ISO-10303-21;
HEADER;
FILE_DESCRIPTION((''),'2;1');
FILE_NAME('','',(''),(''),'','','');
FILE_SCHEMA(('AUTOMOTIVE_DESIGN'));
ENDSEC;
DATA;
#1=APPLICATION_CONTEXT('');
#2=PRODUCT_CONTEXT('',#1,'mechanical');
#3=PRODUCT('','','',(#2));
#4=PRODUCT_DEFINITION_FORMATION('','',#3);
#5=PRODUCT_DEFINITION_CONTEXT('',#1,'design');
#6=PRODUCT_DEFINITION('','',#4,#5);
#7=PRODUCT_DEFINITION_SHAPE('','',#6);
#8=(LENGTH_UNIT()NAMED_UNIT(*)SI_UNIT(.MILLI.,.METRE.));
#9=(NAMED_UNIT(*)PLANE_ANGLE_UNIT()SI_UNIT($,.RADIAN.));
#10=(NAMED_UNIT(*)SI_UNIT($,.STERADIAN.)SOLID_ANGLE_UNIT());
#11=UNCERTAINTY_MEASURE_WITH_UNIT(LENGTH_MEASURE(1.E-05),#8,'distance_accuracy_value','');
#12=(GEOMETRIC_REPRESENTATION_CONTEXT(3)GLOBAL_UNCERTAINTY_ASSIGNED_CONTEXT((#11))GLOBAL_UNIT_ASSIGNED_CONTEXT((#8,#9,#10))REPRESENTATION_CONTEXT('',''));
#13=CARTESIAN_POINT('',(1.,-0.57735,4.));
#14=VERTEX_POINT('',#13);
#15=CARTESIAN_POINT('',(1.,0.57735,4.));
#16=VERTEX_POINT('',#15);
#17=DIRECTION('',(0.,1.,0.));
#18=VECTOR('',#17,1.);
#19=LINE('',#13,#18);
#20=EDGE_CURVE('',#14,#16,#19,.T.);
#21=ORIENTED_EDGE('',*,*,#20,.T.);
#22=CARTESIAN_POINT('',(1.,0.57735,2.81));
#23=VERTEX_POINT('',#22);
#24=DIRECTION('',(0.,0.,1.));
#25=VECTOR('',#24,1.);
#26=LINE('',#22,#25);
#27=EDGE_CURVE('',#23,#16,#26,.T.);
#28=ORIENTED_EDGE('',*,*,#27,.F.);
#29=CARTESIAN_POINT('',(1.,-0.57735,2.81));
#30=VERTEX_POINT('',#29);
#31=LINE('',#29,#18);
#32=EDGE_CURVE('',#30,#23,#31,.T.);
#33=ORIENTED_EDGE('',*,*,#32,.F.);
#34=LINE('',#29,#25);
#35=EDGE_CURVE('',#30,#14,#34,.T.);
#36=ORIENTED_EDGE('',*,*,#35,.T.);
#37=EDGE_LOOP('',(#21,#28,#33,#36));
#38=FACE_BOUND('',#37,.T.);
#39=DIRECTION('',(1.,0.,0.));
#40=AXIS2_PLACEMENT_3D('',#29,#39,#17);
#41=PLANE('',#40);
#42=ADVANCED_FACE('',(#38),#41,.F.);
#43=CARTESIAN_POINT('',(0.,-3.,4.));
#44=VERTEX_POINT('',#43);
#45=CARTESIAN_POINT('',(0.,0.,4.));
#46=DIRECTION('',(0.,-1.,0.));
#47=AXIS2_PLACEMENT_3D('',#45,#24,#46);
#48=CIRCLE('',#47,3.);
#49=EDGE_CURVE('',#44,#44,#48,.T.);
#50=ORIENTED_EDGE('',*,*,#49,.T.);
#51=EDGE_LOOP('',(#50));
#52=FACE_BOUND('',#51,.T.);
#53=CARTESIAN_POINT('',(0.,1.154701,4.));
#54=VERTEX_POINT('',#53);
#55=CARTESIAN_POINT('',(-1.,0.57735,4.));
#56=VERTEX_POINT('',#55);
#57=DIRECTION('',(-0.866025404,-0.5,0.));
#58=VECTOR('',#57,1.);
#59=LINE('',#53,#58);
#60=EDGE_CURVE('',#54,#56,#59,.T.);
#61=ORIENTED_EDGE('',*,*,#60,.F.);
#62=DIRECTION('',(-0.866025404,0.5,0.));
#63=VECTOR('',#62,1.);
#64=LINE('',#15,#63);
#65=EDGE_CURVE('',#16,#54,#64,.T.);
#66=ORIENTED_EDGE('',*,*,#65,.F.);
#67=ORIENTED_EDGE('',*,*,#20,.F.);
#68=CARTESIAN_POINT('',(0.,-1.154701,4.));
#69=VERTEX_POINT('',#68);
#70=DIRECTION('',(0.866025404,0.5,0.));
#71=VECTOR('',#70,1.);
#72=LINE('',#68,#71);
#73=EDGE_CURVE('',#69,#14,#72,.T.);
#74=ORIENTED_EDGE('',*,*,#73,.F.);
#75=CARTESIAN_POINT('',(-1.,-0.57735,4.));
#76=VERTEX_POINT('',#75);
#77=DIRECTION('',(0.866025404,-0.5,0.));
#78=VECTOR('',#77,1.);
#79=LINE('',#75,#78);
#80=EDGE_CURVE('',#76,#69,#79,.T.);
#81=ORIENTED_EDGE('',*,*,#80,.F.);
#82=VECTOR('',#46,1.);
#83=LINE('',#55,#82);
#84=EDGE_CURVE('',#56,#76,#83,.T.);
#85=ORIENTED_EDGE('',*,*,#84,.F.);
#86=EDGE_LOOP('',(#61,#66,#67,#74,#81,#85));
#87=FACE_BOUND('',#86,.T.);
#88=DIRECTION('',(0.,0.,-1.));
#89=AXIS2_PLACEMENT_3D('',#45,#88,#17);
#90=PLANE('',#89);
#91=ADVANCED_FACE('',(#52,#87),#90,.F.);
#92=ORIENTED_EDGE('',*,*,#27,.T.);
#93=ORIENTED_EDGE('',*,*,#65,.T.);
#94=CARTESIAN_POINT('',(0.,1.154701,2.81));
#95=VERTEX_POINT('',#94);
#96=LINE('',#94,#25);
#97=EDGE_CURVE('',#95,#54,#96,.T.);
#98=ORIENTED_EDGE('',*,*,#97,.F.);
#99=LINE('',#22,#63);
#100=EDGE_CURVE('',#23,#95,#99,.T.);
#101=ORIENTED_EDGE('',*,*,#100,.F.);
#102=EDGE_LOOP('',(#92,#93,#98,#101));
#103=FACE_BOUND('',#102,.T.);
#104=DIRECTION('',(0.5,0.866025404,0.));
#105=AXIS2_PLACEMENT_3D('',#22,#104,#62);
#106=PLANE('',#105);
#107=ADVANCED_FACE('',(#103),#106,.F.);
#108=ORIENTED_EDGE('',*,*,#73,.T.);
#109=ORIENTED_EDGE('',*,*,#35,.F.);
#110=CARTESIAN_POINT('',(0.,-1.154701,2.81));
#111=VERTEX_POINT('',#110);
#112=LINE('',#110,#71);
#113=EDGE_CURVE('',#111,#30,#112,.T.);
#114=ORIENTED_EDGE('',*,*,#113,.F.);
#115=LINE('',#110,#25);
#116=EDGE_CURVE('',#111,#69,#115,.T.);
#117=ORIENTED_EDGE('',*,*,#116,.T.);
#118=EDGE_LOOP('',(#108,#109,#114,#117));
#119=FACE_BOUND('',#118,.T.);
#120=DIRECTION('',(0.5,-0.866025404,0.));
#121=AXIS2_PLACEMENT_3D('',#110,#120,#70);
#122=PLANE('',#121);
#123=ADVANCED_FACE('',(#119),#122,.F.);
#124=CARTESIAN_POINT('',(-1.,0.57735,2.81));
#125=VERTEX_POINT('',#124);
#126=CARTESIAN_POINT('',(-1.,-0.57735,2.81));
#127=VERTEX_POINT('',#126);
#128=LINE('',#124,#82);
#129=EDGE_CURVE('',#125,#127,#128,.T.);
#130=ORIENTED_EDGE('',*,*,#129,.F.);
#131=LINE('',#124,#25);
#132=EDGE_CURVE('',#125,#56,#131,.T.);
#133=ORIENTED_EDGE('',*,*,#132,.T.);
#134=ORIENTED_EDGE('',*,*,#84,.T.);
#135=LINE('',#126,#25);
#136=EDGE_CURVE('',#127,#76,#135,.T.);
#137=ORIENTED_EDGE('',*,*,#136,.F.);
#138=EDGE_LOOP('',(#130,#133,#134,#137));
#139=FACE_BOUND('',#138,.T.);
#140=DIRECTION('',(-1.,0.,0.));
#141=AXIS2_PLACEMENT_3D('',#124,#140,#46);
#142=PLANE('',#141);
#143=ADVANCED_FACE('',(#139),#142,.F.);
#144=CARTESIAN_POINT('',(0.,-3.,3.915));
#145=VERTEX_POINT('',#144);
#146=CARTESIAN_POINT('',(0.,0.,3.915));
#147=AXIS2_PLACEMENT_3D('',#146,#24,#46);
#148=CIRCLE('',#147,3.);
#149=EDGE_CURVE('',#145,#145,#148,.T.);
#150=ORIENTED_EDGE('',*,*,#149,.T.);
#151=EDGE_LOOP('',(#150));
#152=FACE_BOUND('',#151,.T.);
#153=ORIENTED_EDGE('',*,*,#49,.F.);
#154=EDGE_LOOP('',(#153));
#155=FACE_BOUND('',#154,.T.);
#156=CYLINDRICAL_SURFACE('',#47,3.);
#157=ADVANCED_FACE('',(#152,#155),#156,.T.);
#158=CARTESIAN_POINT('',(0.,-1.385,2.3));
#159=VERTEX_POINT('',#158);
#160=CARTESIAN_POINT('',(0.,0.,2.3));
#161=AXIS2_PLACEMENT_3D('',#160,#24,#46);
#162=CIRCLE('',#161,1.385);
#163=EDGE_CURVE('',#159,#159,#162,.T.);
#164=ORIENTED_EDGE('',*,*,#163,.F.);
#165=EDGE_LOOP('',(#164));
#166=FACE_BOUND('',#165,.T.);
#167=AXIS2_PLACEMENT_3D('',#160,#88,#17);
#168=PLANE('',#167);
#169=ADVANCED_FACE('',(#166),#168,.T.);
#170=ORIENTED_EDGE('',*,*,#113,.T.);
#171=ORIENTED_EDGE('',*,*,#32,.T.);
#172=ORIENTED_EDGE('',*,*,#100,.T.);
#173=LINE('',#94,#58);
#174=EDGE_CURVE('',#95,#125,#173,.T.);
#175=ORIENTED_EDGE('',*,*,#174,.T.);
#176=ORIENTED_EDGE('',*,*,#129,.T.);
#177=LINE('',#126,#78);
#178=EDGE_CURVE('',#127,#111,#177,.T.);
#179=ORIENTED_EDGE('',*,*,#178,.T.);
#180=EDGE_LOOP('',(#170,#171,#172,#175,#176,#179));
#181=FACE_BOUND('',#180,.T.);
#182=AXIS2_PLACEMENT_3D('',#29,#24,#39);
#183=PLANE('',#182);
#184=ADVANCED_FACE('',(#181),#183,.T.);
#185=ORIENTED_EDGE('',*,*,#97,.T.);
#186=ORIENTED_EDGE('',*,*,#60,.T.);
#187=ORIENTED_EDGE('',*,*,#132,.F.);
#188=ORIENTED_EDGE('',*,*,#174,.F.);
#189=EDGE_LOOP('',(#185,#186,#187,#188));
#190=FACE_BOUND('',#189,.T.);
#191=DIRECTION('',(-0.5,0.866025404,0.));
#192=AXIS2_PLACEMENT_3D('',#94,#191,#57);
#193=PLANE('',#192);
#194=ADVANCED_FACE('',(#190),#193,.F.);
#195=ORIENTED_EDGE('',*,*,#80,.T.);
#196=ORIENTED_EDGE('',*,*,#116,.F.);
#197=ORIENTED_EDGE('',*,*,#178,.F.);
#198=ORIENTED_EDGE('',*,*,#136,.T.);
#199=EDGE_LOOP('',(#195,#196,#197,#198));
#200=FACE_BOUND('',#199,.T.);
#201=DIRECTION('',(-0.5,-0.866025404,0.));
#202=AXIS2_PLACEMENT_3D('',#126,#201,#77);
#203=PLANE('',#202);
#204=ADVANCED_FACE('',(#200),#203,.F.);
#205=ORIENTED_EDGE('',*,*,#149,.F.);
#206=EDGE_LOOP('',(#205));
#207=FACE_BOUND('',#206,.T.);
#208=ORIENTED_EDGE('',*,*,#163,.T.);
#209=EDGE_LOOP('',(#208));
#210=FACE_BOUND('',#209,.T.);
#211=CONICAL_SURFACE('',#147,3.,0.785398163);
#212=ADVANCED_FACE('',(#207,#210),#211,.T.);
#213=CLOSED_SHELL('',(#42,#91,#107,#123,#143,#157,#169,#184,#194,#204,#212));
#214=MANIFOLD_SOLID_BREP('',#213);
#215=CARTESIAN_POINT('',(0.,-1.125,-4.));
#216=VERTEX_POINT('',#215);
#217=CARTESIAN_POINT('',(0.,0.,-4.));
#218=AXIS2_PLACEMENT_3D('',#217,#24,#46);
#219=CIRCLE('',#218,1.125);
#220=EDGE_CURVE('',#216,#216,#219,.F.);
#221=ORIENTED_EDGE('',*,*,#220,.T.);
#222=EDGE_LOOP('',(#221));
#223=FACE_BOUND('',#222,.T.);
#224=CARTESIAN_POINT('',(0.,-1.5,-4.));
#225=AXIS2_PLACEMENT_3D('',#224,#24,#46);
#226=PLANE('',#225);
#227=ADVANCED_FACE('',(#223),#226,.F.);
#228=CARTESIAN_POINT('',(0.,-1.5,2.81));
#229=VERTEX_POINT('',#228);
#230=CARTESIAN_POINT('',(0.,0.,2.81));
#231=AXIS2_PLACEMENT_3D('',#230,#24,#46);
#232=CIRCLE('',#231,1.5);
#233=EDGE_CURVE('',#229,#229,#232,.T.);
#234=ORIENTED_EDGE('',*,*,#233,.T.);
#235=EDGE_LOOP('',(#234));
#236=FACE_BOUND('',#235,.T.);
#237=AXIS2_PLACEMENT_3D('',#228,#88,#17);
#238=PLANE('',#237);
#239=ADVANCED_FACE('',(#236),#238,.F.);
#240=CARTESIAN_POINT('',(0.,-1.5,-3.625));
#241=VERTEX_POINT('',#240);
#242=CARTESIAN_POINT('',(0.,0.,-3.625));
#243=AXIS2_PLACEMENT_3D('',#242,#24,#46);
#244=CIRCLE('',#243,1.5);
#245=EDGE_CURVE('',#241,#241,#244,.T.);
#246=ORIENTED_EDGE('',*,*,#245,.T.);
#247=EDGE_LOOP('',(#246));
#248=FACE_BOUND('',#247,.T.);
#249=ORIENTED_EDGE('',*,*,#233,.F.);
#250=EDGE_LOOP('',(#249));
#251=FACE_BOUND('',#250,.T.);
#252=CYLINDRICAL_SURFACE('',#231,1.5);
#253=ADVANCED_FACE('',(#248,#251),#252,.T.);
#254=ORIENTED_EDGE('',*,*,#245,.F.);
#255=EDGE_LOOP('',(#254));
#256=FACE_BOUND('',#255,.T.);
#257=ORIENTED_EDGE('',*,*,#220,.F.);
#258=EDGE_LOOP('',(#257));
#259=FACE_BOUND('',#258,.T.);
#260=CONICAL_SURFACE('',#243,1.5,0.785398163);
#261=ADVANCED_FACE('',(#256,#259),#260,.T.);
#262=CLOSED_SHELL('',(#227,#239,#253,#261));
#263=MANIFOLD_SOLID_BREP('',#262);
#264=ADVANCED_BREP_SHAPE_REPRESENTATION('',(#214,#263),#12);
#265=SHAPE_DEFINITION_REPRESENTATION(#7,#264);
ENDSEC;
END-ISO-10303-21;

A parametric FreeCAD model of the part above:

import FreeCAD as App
import Part
import Sketcher
from FreeCAD import Vector
Q = App.Units.Quantity


def edges_at(feature, points):
    """Names of the edges that pass closest to the given points."""
    edges = feature.Shape.Edges
    near = lambda p: min(range(len(edges)), key=lambda i: edges[i].distToShape(Part.Vertex(*p))[0])
    return sorted({f"Edge{near(p) + 1}" for p in points})

doc = App.newDocument("Part")
body = doc.addObject("PartDesign::Body", "Body")

sketch1 = body.newObject("Sketcher::SketchObject", "Sketch")
sketch1.AttachmentSupport = (doc.getObject("YZ_Plane"), [""])
sketch1.MapMode = "FlatFace"
sketch1.addGeometry([
    Part.LineSegment(Vector(1.5, -4, 0), Vector(1.5, 2.8, 0)),
    Part.LineSegment(Vector(1.5, 2.8, 0), Vector(0, 2.8, 0)),
    Part.LineSegment(Vector(0, 2.8, 0), Vector(0, -4, 0)),
    Part.LineSegment(Vector(0, -4, 0), Vector(1.5, -4, 0)),
], False)
sketch1.addConstraint([
    Sketcher.Constraint("Coincident", 0, 2, 1, 1),
    Sketcher.Constraint("Coincident", 1, 2, 2, 1),
    Sketcher.Constraint("Coincident", 2, 2, 3, 1),
    Sketcher.Constraint("Coincident", 3, 2, 0, 1),
    Sketcher.Constraint("Vertical", 0),
    Sketcher.Constraint("Horizontal", 1),
    Sketcher.Constraint("Vertical", 2),
    Sketcher.Constraint("Horizontal", 3),
    Sketcher.Constraint("PointOnObject", 1, 2, -2),
    Sketcher.Constraint("DistanceX", 1, 2, 1, 1, 1.5),
    Sketcher.Constraint("DistanceY", 2, 2, -1, 1, 4.0),
    Sketcher.Constraint("DistanceY", 0, 1, 0, 2, 6.81),
])
revolution = body.newObject("PartDesign::Revolution", "Revolution")
revolution.Profile = sketch1
revolution.ReferenceAxis = (sketch1, ["V_Axis"])
revolution.Angle = 360
doc.recompute()

chamfer = body.newObject("PartDesign::Chamfer", "Chamfer")
chamfer.Base = (revolution, edges_at(revolution, [(0, 1.5, -4)]))
chamfer.Size = 0.375
body2 = doc.addObject("PartDesign::Body", "Body001")

sketch2 = body2.newObject("Sketcher::SketchObject", "Sketch001")
sketch2.AttachmentSupport = (doc.getObject("YZ_Plane001"), [""])
sketch2.MapMode = "FlatFace"
sketch2.addGeometry([
    Part.LineSegment(Vector(3, 3.92, 0), Vector(3, 4, 0)),
    Part.LineSegment(Vector(3, 4, 0), Vector(0, 4, 0)),
    Part.LineSegment(Vector(0, 4, 0), Vector(0, 2.3, 0)),
    Part.LineSegment(Vector(0, 2.3, 0), Vector(1.39, 2.3, 0)),
    Part.LineSegment(Vector(1.39, 2.3, 0), Vector(3, 3.92, 0)),
], False)
sketch2.addConstraint([
    Sketcher.Constraint("Coincident", 0, 2, 1, 1),
    Sketcher.Constraint("Coincident", 1, 2, 2, 1),
    Sketcher.Constraint("Coincident", 2, 2, 3, 1),
    Sketcher.Constraint("Coincident", 3, 2, 4, 1),
    Sketcher.Constraint("Coincident", 4, 2, 0, 1),
    Sketcher.Constraint("Vertical", 0),
    Sketcher.Constraint("Horizontal", 1),
    Sketcher.Constraint("Vertical", 2),
    Sketcher.Constraint("Horizontal", 3),
    Sketcher.Constraint("PointOnObject", 1, 2, -2),
    Sketcher.Constraint("DistanceX", 1, 2, 1, 1, 3.0),
    Sketcher.Constraint("Angle", 4, Q("45 deg")),
    Sketcher.Constraint("DistanceY", 2, 2, 2, 1, 1.7),
    Sketcher.Constraint("DistanceY", -1, 1, 0, 2, 4.0),
    Sketcher.Constraint("DistanceX", 3, 1, 3, 2, 1.385),
])
revolution2 = body2.newObject("PartDesign::Revolution", "Revolution001")
revolution2.Profile = sketch2
revolution2.ReferenceAxis = (sketch2, ["V_Axis"])
revolution2.Angle = 360

sketch3 = body2.newObject("Sketcher::SketchObject", "Sketch002")
sketch3.AttachmentSupport = (doc.getObject("XY_Plane001"), [""])
sketch3.MapMode = "FlatFace"
sketch3.AttachmentOffset = App.Placement(Vector(0, 0, 4), App.Rotation())
sketch3.addGeometry([
    Part.LineSegment(Vector(1, -0.6, 0), Vector(1, 0.6, 0)),
    Part.LineSegment(Vector(1, 0.6, 0), Vector(0, 1.2, 0)),
    Part.LineSegment(Vector(0, 1.2, 0), Vector(-1, 0.6, 0)),
    Part.LineSegment(Vector(-1, 0.6, 0), Vector(-1, -0.6, 0)),
    Part.LineSegment(Vector(-1, -0.6, 0), Vector(0, -1.2, 0)),
    Part.LineSegment(Vector(0, -1.2, 0), Vector(1, -0.6, 0)),
], False)
sketch3.addConstraint([
    Sketcher.Constraint("Coincident", 0, 2, 1, 1),
    Sketcher.Constraint("Coincident", 1, 2, 2, 1),
    Sketcher.Constraint("Coincident", 2, 2, 3, 1),
    Sketcher.Constraint("Coincident", 3, 2, 4, 1),
    Sketcher.Constraint("Coincident", 4, 2, 5, 1),
    Sketcher.Constraint("Coincident", 5, 2, 0, 1),
    Sketcher.Constraint("Vertical", 0),
    Sketcher.Constraint("Vertical", 3),
    Sketcher.Constraint("Symmetric", 0, 2, 3, 2, -1, 1),
    Sketcher.Constraint("Symmetric", 1, 2, 4, 2, -1, 1),
    Sketcher.Constraint("PointOnObject", 1, 2, -2),
    Sketcher.Constraint("Parallel", 2, 5),
    Sketcher.Constraint("Horizontal", 0, 2, 2, 2),
    Sketcher.Constraint("Angle", 1, Q("150 deg")),
    Sketcher.Constraint("DistanceX", -1, 1, 0, 2, 1.0),
    Sketcher.Constraint("DistanceY", 0, 1, 0, 2, 1.154701),
])
pocket1 = body2.newObject("PartDesign::Pocket", "Pocket")
pocket1.Profile = sketch3
pocket1.Length = 1.19

doc.recompute()
